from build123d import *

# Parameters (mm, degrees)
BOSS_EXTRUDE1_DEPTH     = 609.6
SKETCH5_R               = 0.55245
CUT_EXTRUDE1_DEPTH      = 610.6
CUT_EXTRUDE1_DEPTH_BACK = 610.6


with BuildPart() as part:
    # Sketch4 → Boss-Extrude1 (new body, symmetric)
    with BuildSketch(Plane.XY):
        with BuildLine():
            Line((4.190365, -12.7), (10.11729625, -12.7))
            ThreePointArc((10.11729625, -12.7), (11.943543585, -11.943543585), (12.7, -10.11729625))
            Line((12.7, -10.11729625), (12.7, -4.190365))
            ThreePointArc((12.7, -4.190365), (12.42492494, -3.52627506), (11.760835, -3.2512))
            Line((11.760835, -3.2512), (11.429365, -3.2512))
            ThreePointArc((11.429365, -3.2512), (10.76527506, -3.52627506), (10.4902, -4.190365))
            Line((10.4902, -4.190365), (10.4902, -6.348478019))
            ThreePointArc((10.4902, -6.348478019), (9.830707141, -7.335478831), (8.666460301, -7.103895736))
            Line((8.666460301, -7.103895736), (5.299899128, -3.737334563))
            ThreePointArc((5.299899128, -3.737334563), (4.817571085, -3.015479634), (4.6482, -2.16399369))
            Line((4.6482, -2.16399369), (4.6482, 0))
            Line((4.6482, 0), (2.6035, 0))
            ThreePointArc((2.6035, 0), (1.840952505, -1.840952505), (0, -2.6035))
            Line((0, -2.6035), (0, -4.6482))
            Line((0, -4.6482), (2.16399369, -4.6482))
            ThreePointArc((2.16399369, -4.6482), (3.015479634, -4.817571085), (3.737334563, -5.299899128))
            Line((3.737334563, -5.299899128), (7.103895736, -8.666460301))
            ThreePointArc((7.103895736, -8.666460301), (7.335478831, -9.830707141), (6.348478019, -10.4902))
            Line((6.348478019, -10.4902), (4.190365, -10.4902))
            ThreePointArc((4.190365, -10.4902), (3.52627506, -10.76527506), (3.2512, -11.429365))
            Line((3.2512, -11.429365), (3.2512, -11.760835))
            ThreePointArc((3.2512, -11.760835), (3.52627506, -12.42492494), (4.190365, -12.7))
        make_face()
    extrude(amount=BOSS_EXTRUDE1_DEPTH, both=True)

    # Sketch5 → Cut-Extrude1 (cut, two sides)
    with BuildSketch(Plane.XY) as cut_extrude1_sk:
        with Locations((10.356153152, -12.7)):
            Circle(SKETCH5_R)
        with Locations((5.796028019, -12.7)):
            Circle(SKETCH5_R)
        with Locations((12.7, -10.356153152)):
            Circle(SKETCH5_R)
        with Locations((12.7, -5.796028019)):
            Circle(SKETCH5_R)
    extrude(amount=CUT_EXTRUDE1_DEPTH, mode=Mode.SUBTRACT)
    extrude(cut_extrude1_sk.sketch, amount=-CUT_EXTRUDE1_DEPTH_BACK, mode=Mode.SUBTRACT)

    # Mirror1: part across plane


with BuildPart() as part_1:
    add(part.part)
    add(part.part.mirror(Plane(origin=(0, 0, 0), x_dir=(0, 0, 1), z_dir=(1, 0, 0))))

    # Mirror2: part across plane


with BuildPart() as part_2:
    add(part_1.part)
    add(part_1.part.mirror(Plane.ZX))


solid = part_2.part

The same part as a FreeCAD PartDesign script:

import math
import FreeCAD as App
import Part
import Sketcher
from FreeCAD import Vector
Q = App.Units.Quantity

doc = App.newDocument("Part")
params = doc.addObject("Spreadsheet::Sheet", "Params")
for row, (alias, value) in enumerate([
    ("pad1_length", "48 in"),
], start=1):
    params.set(f"A{row}", alias)
    params.set(f"B{row}", "=" + value)
    params.setAlias(f"B{row}", alias)

body = doc.addObject("PartDesign::Body", "Body")

# Sketch on XY plane
sketch1 = body.newObject("Sketcher::SketchObject", "Sketch")
sketch1.AttachmentSupport = (doc.getObject("XY_Plane"), [""])
sketch1.MapMode = "FlatFace"
sketch1.addGeometry([
    Part.LineSegment(Vector(4.19, -12.7, 0), Vector(10.12, -12.7, 0)),  # 0
    Part.ArcOfCircle(Part.Circle(Vector(10.12, -10.12, 0), Vector(0, 0, 1), 2.58), math.radians(-90), math.radians(0)),  # 1
    Part.LineSegment(Vector(12.7, -10.12, 0), Vector(12.7, -4.19, 0)),  # 2
    Part.ArcOfCircle(Part.Circle(Vector(11.76, -4.19, 0), Vector(0, 0, 1), 0.94), math.radians(0), math.radians(90)),  # 3
    Part.LineSegment(Vector(11.76, -3.25, 0), Vector(11.43, -3.25, 0)),  # 4
    Part.ArcOfCircle(Part.Circle(Vector(11.43, -4.19, 0), Vector(0, 0, 1), 0.94), math.radians(90), math.radians(180)),  # 5
    Part.LineSegment(Vector(10.49, -4.19, 0), Vector(10.49, -6.35, 0)),  # 6
    Part.ArcOfCircle(Part.Circle(Vector(9.42, -6.35, 0), Vector(0, 0, 1), 1.07), math.radians(-135), math.radians(0)),  # 7
    Part.LineSegment(Vector(8.67, -7.1, 0), Vector(5.3, -3.74, 0)),  # 8
    Part.ArcOfCircle(Part.Circle(Vector(6.87, -2.16, 0), Vector(0, 0, 1), 2.23), math.radians(-180), math.radians(-135)),  # 9
    Part.LineSegment(Vector(4.65, -2.16, 0), Vector(4.65, 0, 0)),  # 10
    Part.LineSegment(Vector(4.65, 0, 0), Vector(2.6, 0, 0)),  # 11
    Part.ArcOfCircle(Part.Circle(Vector(0, 0, 0), Vector(0, 0, 1), 2.6), math.radians(-90), math.radians(0)),  # 12
    Part.LineSegment(Vector(0, -2.6, 0), Vector(0, -4.65, 0)),  # 13
    Part.LineSegment(Vector(0, -4.65, 0), Vector(2.16, -4.65, 0)),  # 14
    Part.ArcOfCircle(Part.Circle(Vector(2.16, -6.87, 0), Vector(0, 0, 1), 2.23), math.radians(45), math.radians(90)),  # 15
    Part.LineSegment(Vector(3.74, -5.3, 0), Vector(7.1, -8.67, 0)),  # 16
    Part.ArcOfCircle(Part.Circle(Vector(6.35, -9.42, 0), Vector(0, 0, 1), 1.07), math.radians(-90), math.radians(45)),  # 17
    Part.LineSegment(Vector(6.35, -10.49, 0), Vector(4.19, -10.49, 0)),  # 18
    Part.ArcOfCircle(Part.Circle(Vector(4.19, -11.43, 0), Vector(0, 0, 1), 0.94), math.radians(90), math.radians(180)),  # 19
    Part.LineSegment(Vector(3.25, -11.43, 0), Vector(3.25, -11.76, 0)),  # 20
    Part.ArcOfCircle(Part.Circle(Vector(4.19, -11.76, 0), Vector(0, 0, 1), 0.94), math.radians(-180), math.radians(-90)),  # 21
], False)
sketch1.addConstraint([
    Sketcher.Constraint("Tangent", 0, 2, 1, 1),
    Sketcher.Constraint("Tangent", 1, 2, 2, 1),
    Sketcher.Constraint("Tangent", 2, 2, 3, 1),
    Sketcher.Constraint("Tangent", 3, 2, 4, 1),
    Sketcher.Constraint("Tangent", 4, 2, 5, 1),
    Sketcher.Constraint("Tangent", 5, 2, 6, 1),
    Sketcher.Constraint("Tangent", 6, 2, 7, 2),
    Sketcher.Constraint("Tangent", 7, 1, 8, 1),
    Sketcher.Constraint("Tangent", 8, 2, 9, 2),
    Sketcher.Constraint("Tangent", 9, 1, 10, 1),
    Sketcher.Constraint("Coincident", 10, 2, 11, 1),
    Sketcher.Constraint("Coincident", 11, 2, 12, 2),
    Sketcher.Constraint("Coincident", 12, 1, 13, 1),
    Sketcher.Constraint("Coincident", 13, 2, 14, 1),
    Sketcher.Constraint("Tangent", 14, 2, 15, 2),
    Sketcher.Constraint("Tangent", 15, 1, 16, 1),
    Sketcher.Constraint("Tangent", 16, 2, 17, 2),
    Sketcher.Constraint("Tangent", 17, 1, 18, 1),
    Sketcher.Constraint("Tangent", 18, 2, 19, 1),
    Sketcher.Constraint("Tangent", 19, 2, 20, 1),
    Sketcher.Constraint("Tangent", 20, 2, 21, 1),
    Sketcher.Constraint("Tangent", 21, 2, 0, 1),
    Sketcher.Constraint("Horizontal", 0),
    Sketcher.Constraint("Vertical", 2),
    Sketcher.Constraint("Horizontal", 4),
    Sketcher.Constraint("Vertical", 6),
    Sketcher.Constraint("Vertical", 10),
    Sketcher.Constraint("Horizontal", 11),
    Sketcher.Constraint("Vertical", 13),
    Sketcher.Constraint("Horizontal", 14),
    Sketcher.Constraint("Horizontal", 18),
    Sketcher.Constraint("Vertical", 20),
    Sketcher.Constraint("Coincident", 12, 3, -1, 1),
    Sketcher.Constraint("Equal", 3, 5),
    Sketcher.Constraint("Equal", 9, 15),
    Sketcher.Constraint("Equal", 7, 17),
    Sketcher.Constraint("Equal", 5, 19),
    Sketcher.Constraint("Equal", 19, 21),
    Sketcher.Constraint("PointOnObject", 10, 2, -1),
    Sketcher.Constraint("PointOnObject", 12, 1, -2),
    Sketcher.Constraint("Parallel", 8, 16),
    Sketcher.Constraint("Equal", 0, 2),
    Sketcher.Constraint("Equal", 18, 6),
    Sketcher.Constraint("Equal", 14, 10),
    Sketcher.Constraint("Equal", 11, 13),
    Sketcher.Constraint("Equal", 4, 20),
    Sketcher.Constraint("Equal", 8, 16),
    Sketcher.Constraint("DistanceY", 0, 2, -1, 1, Q("0.5 in")),
    Sketcher.Constraint("Radius", 9, Q("0.0876 in")),
    Sketcher.Constraint("Radius", 12, Q("0.1025 in")),
    Sketcher.Constraint("DistanceX", 9, 1, 5, 2, Q("0.23 in")),
    Sketcher.Constraint("DistanceX", 11, 2, 11, 1, Q("0.0805 in")),
    Sketcher.Constraint("DistanceY", 3, 2, -1, 1, Q("0.128 in")),
    Sketcher.Constraint("Radius", 7, Q("1.068322 mm")),
    Sketcher.Constraint("DistanceX", 17, 3, 7, 3, Q("0.121 in")),
    Sketcher.Constraint("Radius", 1, Q("2.582704 mm")),
    Sketcher.Constraint("Radius", 3, Q("0.939165 mm")),
])
pad1 = body.newObject("PartDesign::Pad", "Pad")
pad1.Profile = sketch1
pad1.setExpression("Length", "Params.pad1_length")
pad1.Midplane = True

# Sketch on XY plane
sketch2 = body.newObject("Sketcher::SketchObject", "Sketch001")
sketch2.AttachmentSupport = (doc.getObject("XY_Plane"), [""])
sketch2.MapMode = "FlatFace"
sketch2.addGeometry([
    Part.Circle(Vector(10.4, -12.7, 0), Vector(0, 0, 1), 0.6),
    Part.Circle(Vector(5.8, -12.7, 0), Vector(0, 0, 1), 0.6),
    Part.Circle(Vector(12.7, -10.4, 0), Vector(0, 0, 1), 0.6),
    Part.Circle(Vector(12.7, -5.8, 0), Vector(0, 0, 1), 0.6),
], False)
sketch2.addConstraint([
    Sketcher.Constraint("Equal", 0, 1),
    Sketcher.Constraint("Equal", 1, 2),
    Sketcher.Constraint("Equal", 2, 3),
    Sketcher.Constraint("Horizontal", 0, 3, 1, 3),
    Sketcher.Constraint("Vertical", 2, 3, 3, 3),
    Sketcher.Constraint("Diameter", 0, Q("0.0435 in")),
    Sketcher.Constraint("DistanceY", 0, 3, -1, 1, Q("0.5 in")),
    Sketcher.Constraint("DistanceX", -1, 1, 2, 3, Q("0.5 in")),
    Sketcher.Constraint("DistanceX", -1, 1, 1, 3, Q("5.796028 mm")),
    Sketcher.Constraint("DistanceY", 3, 3, -1, 1, Q("5.796028 mm")),
    Sketcher.Constraint("DistanceX", -1, 1, 0, 3, Q("10.356153 mm")),
    Sketcher.Constraint("DistanceY", 2, 3, -1, 1, Q("10.356153 mm")),
])
pocket1 = body.newObject("PartDesign::Pocket", "Pocket")
pocket1.Profile = sketch2
pocket1.Type = "ThroughAll"
pocket1.Midplane = True
body2 = doc.addObject("PartDesign::Body", "Body001")
doc.recompute()

body2.BaseFeature = body
doc.recompute()

mirroring = doc.addObject("Part::Mirroring", "Mirroring")
mirroring.Source = body
mirroring.Base = Vector(0, 0, 0)
mirroring.Normal = Vector(1, 0, 0)
body3 = doc.addObject("PartDesign::Body", "Body002")
body3.BaseFeature = mirroring
boolean = body2.newObject("PartDesign::Boolean", "Boolean")
boolean.Type = "Fuse"
boolean.addObjects([body3])
doc.recompute()
body4 = doc.addObject("PartDesign::Body", "Body003")
doc.recompute()

body4.BaseFeature = body2
doc.recompute()

mirroring2 = doc.addObject("Part::Mirroring", "Mirroring001")
mirroring2.Source = body2
mirroring2.Base = Vector(0, 0, 0)
mirroring2.Normal = Vector(0, 1, 0)
body5 = doc.addObject("PartDesign::Body", "Body004")
body5.BaseFeature = mirroring2
boolean2 = body4.newObject("PartDesign::Boolean", "Boolean001")
boolean2.Type = "Fuse"
boolean2.addObjects([body5])
doc.recompute()
mirroring.Visibility = False
mirroring2.Visibility = False

doc.recompute()
